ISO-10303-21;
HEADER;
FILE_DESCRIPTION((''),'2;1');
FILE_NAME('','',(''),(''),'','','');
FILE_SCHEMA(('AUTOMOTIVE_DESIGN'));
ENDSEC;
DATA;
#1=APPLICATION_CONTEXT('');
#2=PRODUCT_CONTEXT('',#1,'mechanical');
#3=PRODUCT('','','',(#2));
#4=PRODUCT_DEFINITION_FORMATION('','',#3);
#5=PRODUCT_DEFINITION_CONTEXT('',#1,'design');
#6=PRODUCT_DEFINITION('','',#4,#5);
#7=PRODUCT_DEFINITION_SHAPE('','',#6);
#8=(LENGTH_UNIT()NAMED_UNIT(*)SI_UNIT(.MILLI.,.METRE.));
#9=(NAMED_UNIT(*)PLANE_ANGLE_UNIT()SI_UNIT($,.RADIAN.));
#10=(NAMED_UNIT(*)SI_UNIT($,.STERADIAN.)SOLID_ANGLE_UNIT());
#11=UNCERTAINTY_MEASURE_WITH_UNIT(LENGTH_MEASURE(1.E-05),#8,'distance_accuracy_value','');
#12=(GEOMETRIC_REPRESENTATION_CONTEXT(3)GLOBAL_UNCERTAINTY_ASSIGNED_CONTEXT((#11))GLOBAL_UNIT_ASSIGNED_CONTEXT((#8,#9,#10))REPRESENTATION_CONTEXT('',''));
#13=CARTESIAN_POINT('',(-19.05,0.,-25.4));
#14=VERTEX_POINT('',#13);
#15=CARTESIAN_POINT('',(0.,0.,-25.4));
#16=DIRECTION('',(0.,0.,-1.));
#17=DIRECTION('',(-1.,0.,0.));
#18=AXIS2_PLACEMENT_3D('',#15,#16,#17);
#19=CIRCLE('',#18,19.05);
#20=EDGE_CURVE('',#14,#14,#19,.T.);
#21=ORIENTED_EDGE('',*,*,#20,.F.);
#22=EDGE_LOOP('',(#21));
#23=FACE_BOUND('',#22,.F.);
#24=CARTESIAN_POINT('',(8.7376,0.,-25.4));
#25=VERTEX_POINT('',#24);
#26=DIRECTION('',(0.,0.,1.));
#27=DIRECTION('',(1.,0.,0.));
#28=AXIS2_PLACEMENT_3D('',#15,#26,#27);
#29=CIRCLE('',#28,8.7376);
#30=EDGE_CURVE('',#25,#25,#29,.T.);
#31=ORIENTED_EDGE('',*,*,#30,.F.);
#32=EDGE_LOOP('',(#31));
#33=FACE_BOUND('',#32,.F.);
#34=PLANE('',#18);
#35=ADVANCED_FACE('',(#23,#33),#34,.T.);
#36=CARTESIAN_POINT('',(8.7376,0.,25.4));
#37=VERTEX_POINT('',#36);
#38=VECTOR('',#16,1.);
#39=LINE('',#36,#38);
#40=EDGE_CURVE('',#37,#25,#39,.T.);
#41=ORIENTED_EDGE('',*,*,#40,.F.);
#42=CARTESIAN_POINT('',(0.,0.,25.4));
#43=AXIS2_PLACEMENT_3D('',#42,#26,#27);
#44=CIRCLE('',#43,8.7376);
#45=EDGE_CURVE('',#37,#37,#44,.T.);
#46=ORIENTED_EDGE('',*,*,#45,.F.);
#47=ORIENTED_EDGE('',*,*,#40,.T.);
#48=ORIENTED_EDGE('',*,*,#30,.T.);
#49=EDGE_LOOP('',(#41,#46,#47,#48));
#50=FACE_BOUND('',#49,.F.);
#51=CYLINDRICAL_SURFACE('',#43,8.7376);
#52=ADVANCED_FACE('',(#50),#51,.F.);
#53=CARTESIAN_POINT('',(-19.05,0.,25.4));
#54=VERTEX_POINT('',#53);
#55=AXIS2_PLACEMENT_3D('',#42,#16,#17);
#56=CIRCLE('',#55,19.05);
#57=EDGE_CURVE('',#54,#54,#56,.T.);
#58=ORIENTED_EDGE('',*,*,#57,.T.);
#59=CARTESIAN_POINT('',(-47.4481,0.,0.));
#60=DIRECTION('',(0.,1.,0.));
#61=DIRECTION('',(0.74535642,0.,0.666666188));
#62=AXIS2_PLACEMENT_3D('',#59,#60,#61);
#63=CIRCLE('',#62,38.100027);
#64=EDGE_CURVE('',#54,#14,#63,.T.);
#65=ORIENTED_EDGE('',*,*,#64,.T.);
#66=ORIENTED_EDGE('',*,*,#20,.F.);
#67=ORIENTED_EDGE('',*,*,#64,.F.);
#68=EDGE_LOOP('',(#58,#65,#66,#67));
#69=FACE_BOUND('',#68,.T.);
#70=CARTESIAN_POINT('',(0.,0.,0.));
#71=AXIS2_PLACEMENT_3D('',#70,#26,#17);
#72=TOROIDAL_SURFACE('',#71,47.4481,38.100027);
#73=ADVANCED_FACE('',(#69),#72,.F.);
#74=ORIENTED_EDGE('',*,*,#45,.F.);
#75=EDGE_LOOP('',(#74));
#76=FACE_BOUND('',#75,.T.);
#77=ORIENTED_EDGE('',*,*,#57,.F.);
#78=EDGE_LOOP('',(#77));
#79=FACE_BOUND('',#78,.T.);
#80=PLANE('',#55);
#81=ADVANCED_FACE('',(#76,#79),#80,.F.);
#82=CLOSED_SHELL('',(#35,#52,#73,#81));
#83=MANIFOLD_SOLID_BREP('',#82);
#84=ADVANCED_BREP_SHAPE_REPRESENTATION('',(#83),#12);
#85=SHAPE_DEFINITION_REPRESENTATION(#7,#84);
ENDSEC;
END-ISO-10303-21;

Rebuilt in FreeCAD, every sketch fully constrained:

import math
import FreeCAD as App
import Part
import Sketcher
Q = App.Units.Quantity

doc = App.newDocument("Part")
body = doc.addObject("PartDesign::Body", "Body")

sketch1 = doc.addObject("Sketcher::SketchObject", "Sketch")
body.addObject(sketch1)
sketch1.AttachmentSupport = (doc.XZ_Plane, [""])
sketch1.MapMode = "FlatFace"
sketch1.addGeometry(Part.LineSegment(App.Vector(-19.05, 25.4, 0), App.Vector(0, 25.4, 0)), False)
sketch1.addGeometry(Part.LineSegment(App.Vector(0, 25.4, 0), App.Vector(0, -25.4, 0)), False)
sketch1.addGeometry(Part.LineSegment(App.Vector(0, -25.4, 0), App.Vector(-19.05, -25.4, 0)), False)
sketch1.addGeometry(Part.ArcOfCircle(Part.Circle(App.Vector(-47.4481, 0, 0), App.Vector(0, 0, 1), 38.100027), math.radians(-41.810278), math.radians(41.810278)), False)
sketch1.addConstraint(Sketcher.Constraint("Coincident", 0, 2, 1, 1))
sketch1.addConstraint(Sketcher.Constraint("Coincident", 1, 2, 2, 1))
sketch1.addConstraint(Sketcher.Constraint("Coincident", 2, 2, 3, 1))
sketch1.addConstraint(Sketcher.Constraint("Coincident", 3, 2, 0, 1))
sketch1.addConstraint(Sketcher.Constraint("Horizontal", 0))
sketch1.addConstraint(Sketcher.Constraint("Vertical", 1))
sketch1.addConstraint(Sketcher.Constraint("Horizontal", 2))
sketch1.addConstraint(Sketcher.Constraint("Symmetric", 0, 2, 1, 2, -1, 1))
sketch1.addConstraint(Sketcher.Constraint("PointOnObject", 3, 3, -1))
sketch1.addConstraint(Sketcher.Constraint("Radius", 3, Q("1.5 in")))
sketch1.addConstraint(Sketcher.Constraint("DistanceY", 1, 2, 1, 1, Q("2 in")))
sketch1.addConstraint(Sketcher.Constraint("DistanceX", 0, 1, 0, 2, Q("0.75 in")))
revolution = doc.addObject("PartDesign::Revolution", "Revolution")
body.addObject(revolution)
revolution.Profile = sketch1
revolution.ReferenceAxis = (sketch1, ["V_Axis"])
revolution.Angle = 360

sketch2 = doc.addObject("Sketcher::SketchObject", "Sketch001")
body.addObject(sketch2)
sketch2.AttachmentSupport = (doc.XY_Plane, [""])
sketch2.MapMode = "FlatFace"
sketch2.AttachmentOffset = App.Placement(App.Vector(0, 0, 1 * 25.4), App.Rotation())
sketch2.addGeometry(Part.Circle(App.Vector(0, 0, 0), App.Vector(0, 0, 1), 8.7376), False)
sketch2.addConstraint(Sketcher.Constraint("Coincident", 0, 3, -1, 1))
sketch2.addConstraint(Sketcher.Constraint("Diameter", 0, Q("0.688 in")))
pocket1 = doc.addObject("PartDesign::Pocket", "Pocket")
body.addObject(pocket1)
pocket1.Profile = sketch2
pocket1.Type = "ThroughAll"

doc.recompute()
